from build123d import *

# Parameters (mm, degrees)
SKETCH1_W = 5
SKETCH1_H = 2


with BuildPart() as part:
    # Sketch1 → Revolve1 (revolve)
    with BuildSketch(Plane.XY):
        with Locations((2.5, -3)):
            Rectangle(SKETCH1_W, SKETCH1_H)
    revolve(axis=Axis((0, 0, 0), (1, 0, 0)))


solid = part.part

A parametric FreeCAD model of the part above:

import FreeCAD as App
import Part
import Sketcher

V = App.Vector

doc = App.newDocument("Part")
body = doc.addObject("PartDesign::Body", "Body")

# Sketch on XY plane
sketch1 = doc.addObject("Sketcher::SketchObject", "Sketch")
body.addObject(sketch1)
sketch1.AttachmentSupport = (doc.XY_Plane, [""])
sketch1.MapMode = "FlatFace"
sketch1.addGeometry(Part.LineSegment(V(0, -2, 0), V(0, -4, 0)), False)
sketch1.addGeometry(Part.LineSegment(V(0, -4, 0), V(5, -4, 0)), False)
sketch1.addGeometry(Part.LineSegment(V(5, -4, 0), V(5, -2, 0)), False)
sketch1.addGeometry(Part.LineSegment(V(5, -2, 0), V(0, -2, 0)), False)
sketch1.addConstraint(Sketcher.Constraint("Coincident", 0, 2, 1, 1))
sketch1.addConstraint(Sketcher.Constraint("Coincident", 1, 2, 2, 1))
sketch1.addConstraint(Sketcher.Constraint("Coincident", 2, 2, 3, 1))
sketch1.addConstraint(Sketcher.Constraint("Coincident", 3, 2, 0, 1))
sketch1.addConstraint(Sketcher.Constraint("Vertical", 0))
sketch1.addConstraint(Sketcher.Constraint("Horizontal", 1))
sketch1.addConstraint(Sketcher.Constraint("Vertical", 2))
sketch1.addConstraint(Sketcher.Constraint("Horizontal", 3))
sketch1.addConstraint(Sketcher.Constraint("PointOnObject", 0, 2, -2))
sketch1.addConstraint(Sketcher.Constraint("DistanceX", 1, 1, 1, 2, 5.0))
sketch1.addConstraint(Sketcher.Constraint("DistanceY", 0, 2, 0, 1, 2.0))
sketch1.addConstraint(Sketcher.Constraint("DistanceY", 0, 2, -1, 1, 4.0))
revolution = doc.addObject("PartDesign::Revolution", "Revolution")
body.addObject(revolution)
revolution.Profile = sketch1
revolution.ReferenceAxis = (sketch1, ["H_Axis"])
revolution.Angle = 360

doc.recompute()
